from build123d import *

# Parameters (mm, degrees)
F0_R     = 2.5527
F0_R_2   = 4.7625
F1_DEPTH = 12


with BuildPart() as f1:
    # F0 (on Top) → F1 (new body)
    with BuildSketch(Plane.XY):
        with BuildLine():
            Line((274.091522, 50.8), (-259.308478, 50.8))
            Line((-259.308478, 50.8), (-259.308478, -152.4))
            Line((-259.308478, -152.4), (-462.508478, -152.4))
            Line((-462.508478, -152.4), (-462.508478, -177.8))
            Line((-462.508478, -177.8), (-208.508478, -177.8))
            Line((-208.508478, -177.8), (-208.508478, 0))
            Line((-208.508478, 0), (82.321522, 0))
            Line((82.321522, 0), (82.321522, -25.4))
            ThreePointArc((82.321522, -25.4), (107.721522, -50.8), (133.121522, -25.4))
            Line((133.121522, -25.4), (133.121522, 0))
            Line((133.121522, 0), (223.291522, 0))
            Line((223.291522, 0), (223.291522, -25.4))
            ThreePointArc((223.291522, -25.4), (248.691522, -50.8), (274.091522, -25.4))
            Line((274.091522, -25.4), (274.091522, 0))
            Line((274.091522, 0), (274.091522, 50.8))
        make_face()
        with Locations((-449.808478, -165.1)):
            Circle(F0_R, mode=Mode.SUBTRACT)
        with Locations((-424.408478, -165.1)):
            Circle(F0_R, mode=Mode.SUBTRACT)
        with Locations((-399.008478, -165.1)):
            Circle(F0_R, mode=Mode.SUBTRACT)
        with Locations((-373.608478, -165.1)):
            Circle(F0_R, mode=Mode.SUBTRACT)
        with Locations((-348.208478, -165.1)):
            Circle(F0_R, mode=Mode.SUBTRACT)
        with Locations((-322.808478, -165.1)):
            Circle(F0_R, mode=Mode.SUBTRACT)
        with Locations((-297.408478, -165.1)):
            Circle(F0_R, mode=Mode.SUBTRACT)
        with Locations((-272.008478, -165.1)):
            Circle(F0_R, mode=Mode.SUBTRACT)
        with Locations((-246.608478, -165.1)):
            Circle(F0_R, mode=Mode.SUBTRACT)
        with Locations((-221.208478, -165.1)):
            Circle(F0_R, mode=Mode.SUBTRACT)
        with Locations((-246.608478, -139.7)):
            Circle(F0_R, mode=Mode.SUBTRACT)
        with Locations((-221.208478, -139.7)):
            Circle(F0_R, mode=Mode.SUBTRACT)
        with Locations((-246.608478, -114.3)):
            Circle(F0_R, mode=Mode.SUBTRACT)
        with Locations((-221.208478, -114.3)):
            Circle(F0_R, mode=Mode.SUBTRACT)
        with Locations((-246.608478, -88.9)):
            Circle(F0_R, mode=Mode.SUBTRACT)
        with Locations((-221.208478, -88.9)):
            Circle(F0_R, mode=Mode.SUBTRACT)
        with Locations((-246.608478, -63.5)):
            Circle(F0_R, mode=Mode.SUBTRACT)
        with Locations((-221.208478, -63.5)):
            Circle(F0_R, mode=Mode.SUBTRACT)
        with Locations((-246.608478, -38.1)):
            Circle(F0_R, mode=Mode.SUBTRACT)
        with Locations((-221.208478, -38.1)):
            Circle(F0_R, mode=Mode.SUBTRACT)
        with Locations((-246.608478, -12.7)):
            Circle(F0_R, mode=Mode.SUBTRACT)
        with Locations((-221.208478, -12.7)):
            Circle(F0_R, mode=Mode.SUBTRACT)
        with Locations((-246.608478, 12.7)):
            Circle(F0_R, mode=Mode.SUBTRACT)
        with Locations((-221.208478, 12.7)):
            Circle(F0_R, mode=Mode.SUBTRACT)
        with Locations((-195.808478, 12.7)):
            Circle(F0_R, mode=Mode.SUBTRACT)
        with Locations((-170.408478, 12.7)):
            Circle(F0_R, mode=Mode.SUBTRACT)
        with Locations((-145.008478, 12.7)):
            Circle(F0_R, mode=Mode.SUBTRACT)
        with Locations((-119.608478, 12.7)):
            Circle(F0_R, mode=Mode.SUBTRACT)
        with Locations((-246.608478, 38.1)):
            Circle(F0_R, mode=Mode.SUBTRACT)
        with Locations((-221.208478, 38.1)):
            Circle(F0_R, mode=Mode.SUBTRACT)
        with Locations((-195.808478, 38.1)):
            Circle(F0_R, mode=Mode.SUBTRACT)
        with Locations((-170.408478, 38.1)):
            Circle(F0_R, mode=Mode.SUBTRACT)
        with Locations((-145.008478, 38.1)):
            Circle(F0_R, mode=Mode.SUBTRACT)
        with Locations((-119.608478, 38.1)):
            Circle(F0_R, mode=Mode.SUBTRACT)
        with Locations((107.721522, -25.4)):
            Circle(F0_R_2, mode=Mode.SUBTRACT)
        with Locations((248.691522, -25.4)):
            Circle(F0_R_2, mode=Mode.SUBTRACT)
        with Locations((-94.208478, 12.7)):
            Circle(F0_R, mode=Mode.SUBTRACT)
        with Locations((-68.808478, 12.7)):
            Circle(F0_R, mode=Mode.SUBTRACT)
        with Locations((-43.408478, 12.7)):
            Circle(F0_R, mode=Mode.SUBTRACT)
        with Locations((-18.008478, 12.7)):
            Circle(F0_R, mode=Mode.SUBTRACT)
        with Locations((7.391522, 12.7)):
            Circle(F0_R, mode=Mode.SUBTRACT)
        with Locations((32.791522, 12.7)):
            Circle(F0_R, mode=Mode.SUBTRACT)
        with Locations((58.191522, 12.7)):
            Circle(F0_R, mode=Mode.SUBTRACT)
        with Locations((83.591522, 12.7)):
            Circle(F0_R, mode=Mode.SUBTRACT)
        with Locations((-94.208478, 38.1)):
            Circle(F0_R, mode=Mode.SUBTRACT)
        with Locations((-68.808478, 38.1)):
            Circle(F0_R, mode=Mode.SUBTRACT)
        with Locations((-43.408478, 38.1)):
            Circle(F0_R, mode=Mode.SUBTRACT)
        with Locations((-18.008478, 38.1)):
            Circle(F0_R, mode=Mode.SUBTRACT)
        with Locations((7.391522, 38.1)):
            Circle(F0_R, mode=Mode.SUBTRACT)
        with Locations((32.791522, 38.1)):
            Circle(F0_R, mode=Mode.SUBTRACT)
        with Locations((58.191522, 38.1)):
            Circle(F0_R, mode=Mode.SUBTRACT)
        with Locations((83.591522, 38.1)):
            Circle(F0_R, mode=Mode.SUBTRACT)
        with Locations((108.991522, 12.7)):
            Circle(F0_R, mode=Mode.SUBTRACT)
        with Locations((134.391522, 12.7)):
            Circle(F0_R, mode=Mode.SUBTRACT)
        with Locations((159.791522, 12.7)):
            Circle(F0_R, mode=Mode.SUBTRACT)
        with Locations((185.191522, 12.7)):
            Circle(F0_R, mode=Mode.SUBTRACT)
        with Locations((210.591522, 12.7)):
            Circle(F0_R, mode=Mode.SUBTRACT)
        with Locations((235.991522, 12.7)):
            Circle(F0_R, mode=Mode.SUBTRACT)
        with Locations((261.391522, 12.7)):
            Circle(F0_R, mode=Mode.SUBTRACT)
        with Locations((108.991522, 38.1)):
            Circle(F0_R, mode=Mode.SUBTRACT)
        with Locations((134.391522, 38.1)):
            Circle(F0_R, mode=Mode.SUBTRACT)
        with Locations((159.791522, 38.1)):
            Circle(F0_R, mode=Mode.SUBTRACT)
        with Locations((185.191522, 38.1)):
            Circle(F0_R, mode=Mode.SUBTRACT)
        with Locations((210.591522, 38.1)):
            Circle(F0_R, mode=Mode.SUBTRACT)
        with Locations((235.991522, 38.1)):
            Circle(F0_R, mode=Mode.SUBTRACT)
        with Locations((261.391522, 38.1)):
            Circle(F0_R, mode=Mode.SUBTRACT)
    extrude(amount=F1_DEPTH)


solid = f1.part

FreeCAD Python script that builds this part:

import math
import FreeCAD as App
import Part
import Sketcher
Q = App.Units.Quantity

doc = App.newDocument("Part")
body = doc.addObject("PartDesign::Body", "Body")

# Sketch on XY plane
sketch1 = body.newObject("Sketcher::SketchObject", "Sketch")
sketch1.AttachmentSupport = (doc.getObject("XY_Plane"), [""])
sketch1.MapMode = "FlatFace"
sketch1.addGeometry([
    Part.LineSegment(App.Vector(274.1, 50.8, 0), App.Vector(-259.3, 50.8, 0)),  # 0
    Part.LineSegment(App.Vector(-259.3, 50.8, 0), App.Vector(-259.3, -152.4, 0)),  # 1
    Part.LineSegment(App.Vector(-259.3, -152.4, 0), App.Vector(-462.5, -152.4, 0)),  # 2
    Part.LineSegment(App.Vector(-462.5, -152.4, 0), App.Vector(-462.5, -177.8, 0)),  # 3
    Part.LineSegment(App.Vector(-462.5, -177.8, 0), App.Vector(-208.5, -177.8, 0)),  # 4
    Part.LineSegment(App.Vector(-208.5, -177.8, 0), App.Vector(-208.5, 0, 0)),  # 5
    Part.LineSegment(App.Vector(-208.5, 0, 0), App.Vector(82.3, 0, 0)),  # 6
    Part.LineSegment(App.Vector(82.3, 0, 0), App.Vector(82.3, -25.4, 0)),  # 7
    Part.ArcOfCircle(Part.Circle(App.Vector(107.7, -25.4, 0), App.Vector(0, 0, 1), 25.4), math.radians(180), math.radians(360)),  # 8
    Part.LineSegment(App.Vector(133.1, -25.4, 0), App.Vector(133.1, 0, 0)),  # 9
    Part.LineSegment(App.Vector(133.1, 0, 0), App.Vector(223.3, 0, 0)),  # 10
    Part.LineSegment(App.Vector(223.3, 0, 0), App.Vector(223.3, -25.4, 0)),  # 11
    Part.ArcOfCircle(Part.Circle(App.Vector(248.7, -25.4, 0), App.Vector(0, 0, 1), 25.4), math.radians(180), math.radians(360)),  # 12
    Part.LineSegment(App.Vector(274.1, -25.4, 0), App.Vector(274.1, 50.8, 0)),  # 13
    Part.Circle(App.Vector(-449.8, -165.1, 0), App.Vector(0, 0, 1), 2.6),  # 14
    Part.Circle(App.Vector(-424.4, -165.1, 0), App.Vector(0, 0, 1), 2.6),  # 15
    Part.Circle(App.Vector(-399, -165.1, 0), App.Vector(0, 0, 1), 2.6),  # 16
    Part.Circle(App.Vector(-373.6, -165.1, 0), App.Vector(0, 0, 1), 2.6),  # 17
    Part.Circle(App.Vector(-348.2, -165.1, 0), App.Vector(0, 0, 1), 2.6),  # 18
    Part.Circle(App.Vector(-322.8, -165.1, 0), App.Vector(0, 0, 1), 2.6),  # 19
    Part.Circle(App.Vector(-297.4, -165.1, 0), App.Vector(0, 0, 1), 2.6),  # 20
    Part.Circle(App.Vector(-272, -165.1, 0), App.Vector(0, 0, 1), 2.6),  # 21
    Part.Circle(App.Vector(-246.6, -165.1, 0), App.Vector(0, 0, 1), 2.6),  # 22
    Part.Circle(App.Vector(-221.2, -165.1, 0), App.Vector(0, 0, 1), 2.6),  # 23
    Part.Circle(App.Vector(-246.6, -139.7, 0), App.Vector(0, 0, 1), 2.6),  # 24
    Part.Circle(App.Vector(-221.2, -139.7, 0), App.Vector(0, 0, 1), 2.6),  # 25
    Part.Circle(App.Vector(-246.6, -114.3, 0), App.Vector(0, 0, 1), 2.6),  # 26
    Part.Circle(App.Vector(-221.2, -114.3, 0), App.Vector(0, 0, 1), 2.6),  # 27
    Part.Circle(App.Vector(-246.6, -88.9, 0), App.Vector(0, 0, 1), 2.6),  # 28
    Part.Circle(App.Vector(-221.2, -88.9, 0), App.Vector(0, 0, 1), 2.6),  # 29
    Part.Circle(App.Vector(-246.6, -63.5, 0), App.Vector(0, 0, 1), 2.6),  # 30
    Part.Circle(App.Vector(-221.2, -63.5, 0), App.Vector(0, 0, 1), 2.6),  # 31
    Part.Circle(App.Vector(-246.6, -38.1, 0), App.Vector(0, 0, 1), 2.6),  # 32
    Part.Circle(App.Vector(-221.2, -38.1, 0), App.Vector(0, 0, 1), 2.6),  # 33
    Part.Circle(App.Vector(-246.6, -12.7, 0), App.Vector(0, 0, 1), 2.6),  # 34
    Part.Circle(App.Vector(-221.2, -12.7, 0), App.Vector(0, 0, 1), 2.6),  # 35
    Part.Circle(App.Vector(-246.6, 12.7, 0), App.Vector(0, 0, 1), 2.6),  # 36
    Part.Circle(App.Vector(-221.2, 12.7, 0), App.Vector(0, 0, 1), 2.6),  # 37
    Part.Circle(App.Vector(-195.8, 12.7, 0), App.Vector(0, 0, 1), 2.6),  # 38
    Part.Circle(App.Vector(-170.4, 12.7, 0), App.Vector(0, 0, 1), 2.6),  # 39
    Part.Circle(App.Vector(-145, 12.7, 0), App.Vector(0, 0, 1), 2.6),  # 40
    Part.Circle(App.Vector(-119.6, 12.7, 0), App.Vector(0, 0, 1), 2.6),  # 41
    Part.Circle(App.Vector(-246.6, 38.1, 0), App.Vector(0, 0, 1), 2.6),  # 42
    Part.Circle(App.Vector(-221.2, 38.1, 0), App.Vector(0, 0, 1), 2.6),  # 43
    Part.Circle(App.Vector(-195.8, 38.1, 0), App.Vector(0, 0, 1), 2.6),  # 44
    Part.Circle(App.Vector(-170.4, 38.1, 0), App.Vector(0, 0, 1), 2.6),  # 45
    Part.Circle(App.Vector(-145, 38.1, 0), App.Vector(0, 0, 1), 2.6),  # 46
    Part.Circle(App.Vector(-119.6, 38.1, 0), App.Vector(0, 0, 1), 2.6),  # 47
    Part.Circle(App.Vector(107.7, -25.4, 0), App.Vector(0, 0, 1), 4.8),  # 48
    Part.Circle(App.Vector(248.7, -25.4, 0), App.Vector(0, 0, 1), 4.8),  # 49
    Part.Circle(App.Vector(-94.2, 12.7, 0), App.Vector(0, 0, 1), 2.6),  # 50
    Part.Circle(App.Vector(-68.8, 12.7, 0), App.Vector(0, 0, 1), 2.6),  # 51
    Part.Circle(App.Vector(-43.4, 12.7, 0), App.Vector(0, 0, 1), 2.6),  # 52
    Part.Circle(App.Vector(-18, 12.7, 0), App.Vector(0, 0, 1), 2.6),  # 53
    Part.Circle(App.Vector(7.4, 12.7, 0), App.Vector(0, 0, 1), 2.6),  # 54
    Part.Circle(App.Vector(32.8, 12.7, 0), App.Vector(0, 0, 1), 2.6),  # 55
    Part.Circle(App.Vector(58.2, 12.7, 0), App.Vector(0, 0, 1), 2.6),  # 56
    Part.Circle(App.Vector(83.6, 12.7, 0), App.Vector(0, 0, 1), 2.6),  # 57
    Part.Circle(App.Vector(-94.2, 38.1, 0), App.Vector(0, 0, 1), 2.6),  # 58
    Part.Circle(App.Vector(-68.8, 38.1, 0), App.Vector(0, 0, 1), 2.6),  # 59
    Part.Circle(App.Vector(-43.4, 38.1, 0), App.Vector(0, 0, 1), 2.6),  # 60
    Part.Circle(App.Vector(-18, 38.1, 0), App.Vector(0, 0, 1), 2.6),  # 61
    Part.Circle(App.Vector(7.4, 38.1, 0), App.Vector(0, 0, 1), 2.6),  # 62
    Part.Circle(App.Vector(32.8, 38.1, 0), App.Vector(0, 0, 1), 2.6),  # 63
    Part.Circle(App.Vector(58.2, 38.1, 0), App.Vector(0, 0, 1), 2.6),  # 64
    Part.Circle(App.Vector(83.6, 38.1, 0), App.Vector(0, 0, 1), 2.6),  # 65
    Part.Circle(App.Vector(109, 12.7, 0), App.Vector(0, 0, 1), 2.6),  # 66
    Part.Circle(App.Vector(134.4, 12.7, 0), App.Vector(0, 0, 1), 2.6),  # 67
    Part.Circle(App.Vector(159.8, 12.7, 0), App.Vector(0, 0, 1), 2.6),  # 68
    Part.Circle(App.Vector(185.2, 12.7, 0), App.Vector(0, 0, 1), 2.6),  # 69
    Part.Circle(App.Vector(210.6, 12.7, 0), App.Vector(0, 0, 1), 2.6),  # 70
    Part.Circle(App.Vector(236, 12.7, 0), App.Vector(0, 0, 1), 2.6),  # 71
    Part.Circle(App.Vector(261.4, 12.7, 0), App.Vector(0, 0, 1), 2.6),  # 72
    Part.Circle(App.Vector(109, 38.1, 0), App.Vector(0, 0, 1), 2.6),  # 73
    Part.Circle(App.Vector(134.4, 38.1, 0), App.Vector(0, 0, 1), 2.6),  # 74
    Part.Circle(App.Vector(159.8, 38.1, 0), App.Vector(0, 0, 1), 2.6),  # 75
    Part.Circle(App.Vector(185.2, 38.1, 0), App.Vector(0, 0, 1), 2.6),  # 76
    Part.Circle(App.Vector(210.6, 38.1, 0), App.Vector(0, 0, 1), 2.6),  # 77
    Part.Circle(App.Vector(236, 38.1, 0), App.Vector(0, 0, 1), 2.6),  # 78
    Part.Circle(App.Vector(261.4, 38.1, 0), App.Vector(0, 0, 1), 2.6),  # 79
], False)
sketch1.addConstraint([
    Sketcher.Constraint("Coincident", 0, 2, 1, 1),
    Sketcher.Constraint("Coincident", 1, 2, 2, 1),
    Sketcher.Constraint("Coincident", 2, 2, 3, 1),
    Sketcher.Constraint("Coincident", 3, 2, 4, 1),
    Sketcher.Constraint("Coincident", 4, 2, 5, 1),
    Sketcher.Constraint("Coincident", 5, 2, 6, 1),
    Sketcher.Constraint("Coincident", 6, 2, 7, 1),
    Sketcher.Constraint("Tangent", 7, 2, 8, 1),
    Sketcher.Constraint("Tangent", 8, 2, 9, 1),
    Sketcher.Constraint("Coincident", 9, 2, 10, 1),
    Sketcher.Constraint("Coincident", 10, 2, 11, 1),
    Sketcher.Constraint("Tangent", 11, 2, 12, 1),
    Sketcher.Constraint("Tangent", 12, 2, 13, 1),
    Sketcher.Constraint("Coincident", 13, 2, 0, 1),
    Sketcher.Constraint("Horizontal", 0),
    Sketcher.Constraint("Vertical", 1),
    Sketcher.Constraint("Horizontal", 2),
    Sketcher.Constraint("Vertical", 3),
    Sketcher.Constraint("Horizontal", 4),
    Sketcher.Constraint("Vertical", 5),
    Sketcher.Constraint("Horizontal", 6),
    Sketcher.Constraint("Vertical", 7),
    Sketcher.Constraint("Vertical", 9),
    Sketcher.Constraint("Horizontal", 10),
    Sketcher.Constraint("Vertical", 11),
    Sketcher.Constraint("Vertical", 13),
    Sketcher.Constraint("Coincident", 48, 3, 8, 3),
    Sketcher.Constraint("Coincident", 49, 3, 12, 3),
    Sketcher.Constraint("Equal", 8, 12),
    Sketcher.Constraint("Equal", 14, 15),
    Sketcher.Constraint("Equal", 15, 16),
    Sketcher.Constraint("Equal", 16, 17),
    Sketcher.Constraint("Equal", 17, 18),
    Sketcher.Constraint("Equal", 18, 19),
    Sketcher.Constraint("Equal", 19, 20),
    Sketcher.Constraint("Equal", 20, 21),
    Sketcher.Constraint("Equal", 21, 22),
    Sketcher.Constraint("Equal", 22, 23),
    Sketcher.Constraint("Equal", 23, 24),
    Sketcher.Constraint("Equal", 24, 25),
    Sketcher.Constraint("Equal", 25, 26),
    Sketcher.Constraint("Equal", 26, 27),
    Sketcher.Constraint("Equal", 27, 28),
    Sketcher.Constraint("Equal", 28, 29),
    Sketcher.Constraint("Equal", 29, 30),
    Sketcher.Constraint("Equal", 30, 31),
    Sketcher.Constraint("Equal", 31, 32),
    Sketcher.Constraint("Equal", 32, 33),
    Sketcher.Constraint("Equal", 33, 34),
    Sketcher.Constraint("Equal", 34, 35),
    Sketcher.Constraint("Equal", 35, 36),
    Sketcher.Constraint("Equal", 36, 37),
    Sketcher.Constraint("Equal", 37, 38),
    Sketcher.Constraint("Equal", 38, 39),
    Sketcher.Constraint("Equal", 39, 40),
    Sketcher.Constraint("Equal", 40, 41),
    Sketcher.Constraint("Equal", 41, 42),
    Sketcher.Constraint("Equal", 42, 43),
    Sketcher.Constraint("Equal", 43, 44),
    Sketcher.Constraint("Equal", 44, 45),
    Sketcher.Constraint("Equal", 45, 46),
    Sketcher.Constraint("Equal", 46, 47),
    Sketcher.Constraint("Equal", 48, 49),
    Sketcher.Constraint("Equal", 47, 50),
    Sketcher.Constraint("Equal", 50, 51),
    Sketcher.Constraint("Equal", 51, 52),
    Sketcher.Constraint("Equal", 52, 53),
    Sketcher.Constraint("Equal", 53, 54),
    Sketcher.Constraint("Equal", 54, 55),
    Sketcher.Constraint("Equal", 55, 56),
    Sketcher.Constraint("Equal", 56, 57),
    Sketcher.Constraint("Equal", 57, 58),
    Sketcher.Constraint("Equal", 58, 59),
    Sketcher.Constraint("Equal", 59, 60),
    Sketcher.Constraint("Equal", 60, 61),
    Sketcher.Constraint("Equal", 61, 62),
    Sketcher.Constraint("Equal", 62, 63),
    Sketcher.Constraint("Equal", 63, 64),
    Sketcher.Constraint("Equal", 64, 65),
    Sketcher.Constraint("Equal", 65, 66),
    Sketcher.Constraint("Equal", 66, 67),
    Sketcher.Constraint("Equal", 67, 68),
    Sketcher.Constraint("Equal", 68, 69),
    Sketcher.Constraint("Equal", 69, 70),
    Sketcher.Constraint("Equal", 70, 71),
    Sketcher.Constraint("Equal", 71, 72),
    Sketcher.Constraint("Equal", 72, 73),
    Sketcher.Constraint("Equal", 73, 74),
    Sketcher.Constraint("Equal", 74, 75),
    Sketcher.Constraint("Equal", 75, 76),
    Sketcher.Constraint("Equal", 76, 77),
    Sketcher.Constraint("Equal", 77, 78),
    Sketcher.Constraint("Equal", 78, 79),
    Sketcher.Constraint("Symmetric", 34, 3, 36, 3, -1),
    Sketcher.Constraint("Symmetric", 35, 3, 37, 3, -1),
    Sketcher.Constraint("Symmetric", 32, 3, 42, 3, -1),
    Sketcher.Constraint("Symmetric", 33, 3, 43, 3, -1),
    Sketcher.Constraint("PointOnObject", 5, 2, -1),
    Sketcher.Constraint("PointOnObject", 9, 2, -1),
    Sketcher.Constraint("Horizontal", 8, 3, 12, 3),
    Sketcher.Constraint("Horizontal", 14, 3, 15, 3),
    Sketcher.Constraint("Horizontal", 15, 3, 16, 3),
    Sketcher.Constraint("Horizontal", 16, 3, 17, 3),
    Sketcher.Constraint("Horizontal", 17, 3, 18, 3),
    Sketcher.Constraint("Horizontal", 18, 3, 19, 3),
    Sketcher.Constraint("Horizontal", 19, 3, 20, 3),
    Sketcher.Constraint("Horizontal", 20, 3, 21, 3),
    Sketcher.Constraint("Horizontal", 21, 3, 22, 3),
    Sketcher.Constraint("Horizontal", 22, 3, 23, 3),
    Sketcher.Constraint("Horizontal", 24, 3, 25, 3),
    Sketcher.Constraint("Horizontal", 26, 3, 27, 3),
    Sketcher.Constraint("Horizontal", 28, 3, 29, 3),
    Sketcher.Constraint("Horizontal", 30, 3, 31, 3),
    Sketcher.Constraint("Horizontal", 32, 3, 33, 3),
    Sketcher.Constraint("Horizontal", 34, 3, 35, 3),
    Sketcher.Constraint("Horizontal", 37, 3, 38, 3),
    Sketcher.Constraint("Horizontal", 38, 3, 39, 3),
    Sketcher.Constraint("Horizontal", 39, 3, 40, 3),
    Sketcher.Constraint("Horizontal", 40, 3, 41, 3),
    Sketcher.Constraint("Horizontal", 43, 3, 44, 3),
    Sketcher.Constraint("Horizontal", 44, 3, 45, 3),
    Sketcher.Constraint("Horizontal", 45, 3, 46, 3),
    Sketcher.Constraint("Horizontal", 46, 3, 47, 3),
    Sketcher.Constraint("Horizontal", 41, 3, 50, 3),
    Sketcher.Constraint("Horizontal", 50, 3, 51, 3),
    Sketcher.Constraint("Horizontal", 51, 3, 52, 3),
    Sketcher.Constraint("Horizontal", 52, 3, 53, 3),
    Sketcher.Constraint("Horizontal", 53, 3, 54, 3),
    Sketcher.Constraint("Horizontal", 54, 3, 55, 3),
    Sketcher.Constraint("Horizontal", 55, 3, 56, 3),
    Sketcher.Constraint("Horizontal", 56, 3, 57, 3),
    Sketcher.Constraint("Horizontal", 47, 3, 58, 3),
    Sketcher.Constraint("Horizontal", 58, 3, 59, 3),
    Sketcher.Constraint("Horizontal", 59, 3, 60, 3),
    Sketcher.Constraint("Horizontal", 60, 3, 61, 3),
    Sketcher.Constraint("Horizontal", 61, 3, 62, 3),
    Sketcher.Constraint("Horizontal", 62, 3, 63, 3),
    Sketcher.Constraint("Horizontal", 63, 3, 64, 3),
    Sketcher.Constraint("Horizontal", 64, 3, 65, 3),
    Sketcher.Constraint("Horizontal", 57, 3, 66, 3),
    Sketcher.Constraint("Horizontal", 66, 3, 67, 3),
    Sketcher.Constraint("Horizontal", 67, 3, 68, 3),
    Sketcher.Constraint("Horizontal", 68, 3, 69, 3),
    Sketcher.Constraint("Horizontal", 69, 3, 70, 3),
    Sketcher.Constraint("Horizontal", 70, 3, 71, 3),
    Sketcher.Constraint("Horizontal", 71, 3, 72, 3),
    Sketcher.Constraint("Horizontal", 65, 3, 73, 3),
    Sketcher.Constraint("Horizontal", 73, 3, 74, 3),
    Sketcher.Constraint("Horizontal", 74, 3, 75, 3),
    Sketcher.Constraint("Horizontal", 75, 3, 76, 3),
    Sketcher.Constraint("Horizontal", 76, 3, 77, 3),
    Sketcher.Constraint("Horizontal", 77, 3, 78, 3),
    Sketcher.Constraint("Horizontal", 78, 3, 79, 3),
    Sketcher.Constraint("Vertical", 22, 3, 24, 3),
    Sketcher.Constraint("Vertical", 23, 3, 25, 3),
    Sketcher.Constraint("Vertical", 24, 3, 26, 3),
    Sketcher.Constraint("Vertical", 25, 3, 27, 3),
    Sketcher.Constraint("Vertical", 26, 3, 28, 3),
    Sketcher.Constraint("Vertical", 27, 3, 29, 3),
    Sketcher.Constraint("Vertical", 28, 3, 30, 3),
    Sketcher.Constraint("Vertical", 29, 3, 31, 3),
    Sketcher.Constraint("Vertical", 30, 3, 32, 3),
    Sketcher.Constraint("Vertical", 31, 3, 33, 3),
    Sketcher.Constraint("Vertical", 32, 3, 34, 3),
    Sketcher.Constraint("Vertical", 33, 3, 35, 3),
    Sketcher.Constraint("Vertical", 38, 3, 44, 3),
    Sketcher.Constraint("Vertical", 39, 3, 45, 3),
    Sketcher.Constraint("Vertical", 40, 3, 46, 3),
    Sketcher.Constraint("Vertical", 41, 3, 47, 3),
    Sketcher.Constraint("Vertical", 50, 3, 58, 3),
    Sketcher.Constraint("Vertical", 51, 3, 59, 3),
    Sketcher.Constraint("Vertical", 52, 3, 60, 3),
    Sketcher.Constraint("Vertical", 53, 3, 61, 3),
    Sketcher.Constraint("Vertical", 54, 3, 62, 3),
    Sketcher.Constraint("Vertical", 55, 3, 63, 3),
    Sketcher.Constraint("Vertical", 56, 3, 64, 3),
    Sketcher.Constraint("Vertical", 57, 3, 65, 3),
    Sketcher.Constraint("Vertical", 66, 3, 73, 3),
    Sketcher.Constraint("Vertical", 67, 3, 74, 3),
    Sketcher.Constraint("Vertical", 68, 3, 75, 3),
    Sketcher.Constraint("Vertical", 69, 3, 76, 3),
    Sketcher.Constraint("Vertical", 70, 3, 77, 3),
    Sketcher.Constraint("Vertical", 71, 3, 78, 3),
    Sketcher.Constraint("Vertical", 72, 3, 79, 3),
    Sketcher.Constraint("Equal", 2, 1),
    Sketcher.Constraint("Equal", 3, 7),
    Sketcher.Constraint("Radius", 8, Q("1 in")),
    Sketcher.Constraint("DistanceX", 0, 2, 0, 1, Q("21 in")),
    Sketcher.Constraint("DistanceX", 2, 2, 2, 1, Q("8 in")),
    Sketcher.Constraint("DistanceX", 4, 1, 4, 2, Q("10 in")),
    Sketcher.Constraint("DistanceY", 3, 2, 3, 1, Q("1 in")),
    Sketcher.Constraint("DistanceY", 5, 1, 5, 2, Q("7 in")),
    Sketcher.Constraint("Diameter", 14, Q("0.201 in")),
    Sketcher.Constraint("Diameter", 48, Q("0.375 in")),
    Sketcher.Constraint("DistanceX", 6, 1, 6, 2, Q("11.45 in")),
    Sketcher.Constraint("DistanceY", 14, 3, -1, 1, Q("6.5 in")),
    Sketcher.Constraint("DistanceY", 24, 3, -1, 1, Q("5.5 in")),
    Sketcher.Constraint("DistanceY", 26, 3, -1, 1, Q("4.5 in")),
    Sketcher.Constraint("DistanceY", 28, 3, -1, 1, Q("3.5 in")),
    Sketcher.Constraint("DistanceY", 30, 3, -1, 1, Q("2.5 in")),
    Sketcher.Constraint("DistanceY", 32, 3, -1, 1, Q("1.5 in")),
    Sketcher.Constraint("DistanceY", 34, 3, -1, 1, Q("0.5 in")),
    Sketcher.Constraint("DistanceX", -1, 1, 8, 3, Q("107.721522 mm")),
    Sketcher.Constraint("DistanceX", 14, 3, -1, 1, Q("449.808478 mm")),
    Sketcher.Constraint("DistanceX", 15, 3, -1, 1, Q("424.408478 mm")),
    Sketcher.Constraint("DistanceX", 16, 3, -1, 1, Q("399.008478 mm")),
    Sketcher.Constraint("DistanceX", 17, 3, -1, 1, Q("373.608478 mm")),
    Sketcher.Constraint("DistanceX", 18, 3, -1, 1, Q("348.208478 mm")),
    Sketcher.Constraint("DistanceX", 19, 3, -1, 1, Q("322.808478 mm")),
    Sketcher.Constraint("DistanceX", 20, 3, -1, 1, Q("297.408478 mm")),
    Sketcher.Constraint("DistanceX", 21, 3, -1, 1, Q("272.008478 mm")),
    Sketcher.Constraint("DistanceX", 22, 3, -1, 1, Q("246.608478 mm")),
    Sketcher.Constraint("DistanceX", 23, 3, -1, 1, Q("221.208478 mm")),
    Sketcher.Constraint("DistanceX", 38, 3, -1, 1, Q("195.808478 mm")),
    Sketcher.Constraint("DistanceX", 39, 3, -1, 1, Q("170.408478 mm")),
    Sketcher.Constraint("DistanceX", 40, 3, -1, 1, Q("145.008478 mm")),
    Sketcher.Constraint("DistanceX", 41, 3, -1, 1, Q("119.608478 mm")),
    Sketcher.Constraint("DistanceX", 50, 3, -1, 1, Q("94.208478 mm")),
    Sketcher.Constraint("DistanceX", 52, 3, -1, 1, Q("43.408478 mm")),
    Sketcher.Constraint("DistanceX", 53, 3, -1, 1, Q("18.008478 mm")),
    Sketcher.Constraint("DistanceX", -1, 1, 57, 3, Q("83.591522 mm")),
    Sketcher.Constraint("DistanceX", -1, 1, 67, 3, Q("134.391522 mm")),
    Sketcher.Constraint("DistanceX", -1, 1, 68, 3, Q("159.791522 mm")),
    Sketcher.Constraint("DistanceX", -1, 1, 69, 3, Q("185.191522 mm")),
    Sketcher.Constraint("DistanceX", -1, 1, 70, 3, Q("210.591522 mm")),
    Sketcher.Constraint("DistanceX", -1, 1, 71, 3, Q("235.991522 mm")),
    Sketcher.Constraint("DistanceX", -1, 1, 72, 3, Q("261.391522 mm")),
    Sketcher.Constraint("DistanceX", 51, 3, -1, 1, Q("68.808478 mm")),
    Sketcher.Constraint("DistanceX", -1, 1, 54, 3, Q("7.391522 mm")),
    Sketcher.Constraint("DistanceX", -1, 1, 55, 3, Q("32.791522 mm")),
    Sketcher.Constraint("DistanceX", -1, 1, 56, 3, Q("58.191522 mm")),
    Sketcher.Constraint("DistanceX", -1, 1, 66, 3, Q("108.991522 mm")),
])
pad1 = body.newObject("PartDesign::Pad", "Pad")
pad1.Profile = sketch1
pad1.Length = 12

doc.recompute()
